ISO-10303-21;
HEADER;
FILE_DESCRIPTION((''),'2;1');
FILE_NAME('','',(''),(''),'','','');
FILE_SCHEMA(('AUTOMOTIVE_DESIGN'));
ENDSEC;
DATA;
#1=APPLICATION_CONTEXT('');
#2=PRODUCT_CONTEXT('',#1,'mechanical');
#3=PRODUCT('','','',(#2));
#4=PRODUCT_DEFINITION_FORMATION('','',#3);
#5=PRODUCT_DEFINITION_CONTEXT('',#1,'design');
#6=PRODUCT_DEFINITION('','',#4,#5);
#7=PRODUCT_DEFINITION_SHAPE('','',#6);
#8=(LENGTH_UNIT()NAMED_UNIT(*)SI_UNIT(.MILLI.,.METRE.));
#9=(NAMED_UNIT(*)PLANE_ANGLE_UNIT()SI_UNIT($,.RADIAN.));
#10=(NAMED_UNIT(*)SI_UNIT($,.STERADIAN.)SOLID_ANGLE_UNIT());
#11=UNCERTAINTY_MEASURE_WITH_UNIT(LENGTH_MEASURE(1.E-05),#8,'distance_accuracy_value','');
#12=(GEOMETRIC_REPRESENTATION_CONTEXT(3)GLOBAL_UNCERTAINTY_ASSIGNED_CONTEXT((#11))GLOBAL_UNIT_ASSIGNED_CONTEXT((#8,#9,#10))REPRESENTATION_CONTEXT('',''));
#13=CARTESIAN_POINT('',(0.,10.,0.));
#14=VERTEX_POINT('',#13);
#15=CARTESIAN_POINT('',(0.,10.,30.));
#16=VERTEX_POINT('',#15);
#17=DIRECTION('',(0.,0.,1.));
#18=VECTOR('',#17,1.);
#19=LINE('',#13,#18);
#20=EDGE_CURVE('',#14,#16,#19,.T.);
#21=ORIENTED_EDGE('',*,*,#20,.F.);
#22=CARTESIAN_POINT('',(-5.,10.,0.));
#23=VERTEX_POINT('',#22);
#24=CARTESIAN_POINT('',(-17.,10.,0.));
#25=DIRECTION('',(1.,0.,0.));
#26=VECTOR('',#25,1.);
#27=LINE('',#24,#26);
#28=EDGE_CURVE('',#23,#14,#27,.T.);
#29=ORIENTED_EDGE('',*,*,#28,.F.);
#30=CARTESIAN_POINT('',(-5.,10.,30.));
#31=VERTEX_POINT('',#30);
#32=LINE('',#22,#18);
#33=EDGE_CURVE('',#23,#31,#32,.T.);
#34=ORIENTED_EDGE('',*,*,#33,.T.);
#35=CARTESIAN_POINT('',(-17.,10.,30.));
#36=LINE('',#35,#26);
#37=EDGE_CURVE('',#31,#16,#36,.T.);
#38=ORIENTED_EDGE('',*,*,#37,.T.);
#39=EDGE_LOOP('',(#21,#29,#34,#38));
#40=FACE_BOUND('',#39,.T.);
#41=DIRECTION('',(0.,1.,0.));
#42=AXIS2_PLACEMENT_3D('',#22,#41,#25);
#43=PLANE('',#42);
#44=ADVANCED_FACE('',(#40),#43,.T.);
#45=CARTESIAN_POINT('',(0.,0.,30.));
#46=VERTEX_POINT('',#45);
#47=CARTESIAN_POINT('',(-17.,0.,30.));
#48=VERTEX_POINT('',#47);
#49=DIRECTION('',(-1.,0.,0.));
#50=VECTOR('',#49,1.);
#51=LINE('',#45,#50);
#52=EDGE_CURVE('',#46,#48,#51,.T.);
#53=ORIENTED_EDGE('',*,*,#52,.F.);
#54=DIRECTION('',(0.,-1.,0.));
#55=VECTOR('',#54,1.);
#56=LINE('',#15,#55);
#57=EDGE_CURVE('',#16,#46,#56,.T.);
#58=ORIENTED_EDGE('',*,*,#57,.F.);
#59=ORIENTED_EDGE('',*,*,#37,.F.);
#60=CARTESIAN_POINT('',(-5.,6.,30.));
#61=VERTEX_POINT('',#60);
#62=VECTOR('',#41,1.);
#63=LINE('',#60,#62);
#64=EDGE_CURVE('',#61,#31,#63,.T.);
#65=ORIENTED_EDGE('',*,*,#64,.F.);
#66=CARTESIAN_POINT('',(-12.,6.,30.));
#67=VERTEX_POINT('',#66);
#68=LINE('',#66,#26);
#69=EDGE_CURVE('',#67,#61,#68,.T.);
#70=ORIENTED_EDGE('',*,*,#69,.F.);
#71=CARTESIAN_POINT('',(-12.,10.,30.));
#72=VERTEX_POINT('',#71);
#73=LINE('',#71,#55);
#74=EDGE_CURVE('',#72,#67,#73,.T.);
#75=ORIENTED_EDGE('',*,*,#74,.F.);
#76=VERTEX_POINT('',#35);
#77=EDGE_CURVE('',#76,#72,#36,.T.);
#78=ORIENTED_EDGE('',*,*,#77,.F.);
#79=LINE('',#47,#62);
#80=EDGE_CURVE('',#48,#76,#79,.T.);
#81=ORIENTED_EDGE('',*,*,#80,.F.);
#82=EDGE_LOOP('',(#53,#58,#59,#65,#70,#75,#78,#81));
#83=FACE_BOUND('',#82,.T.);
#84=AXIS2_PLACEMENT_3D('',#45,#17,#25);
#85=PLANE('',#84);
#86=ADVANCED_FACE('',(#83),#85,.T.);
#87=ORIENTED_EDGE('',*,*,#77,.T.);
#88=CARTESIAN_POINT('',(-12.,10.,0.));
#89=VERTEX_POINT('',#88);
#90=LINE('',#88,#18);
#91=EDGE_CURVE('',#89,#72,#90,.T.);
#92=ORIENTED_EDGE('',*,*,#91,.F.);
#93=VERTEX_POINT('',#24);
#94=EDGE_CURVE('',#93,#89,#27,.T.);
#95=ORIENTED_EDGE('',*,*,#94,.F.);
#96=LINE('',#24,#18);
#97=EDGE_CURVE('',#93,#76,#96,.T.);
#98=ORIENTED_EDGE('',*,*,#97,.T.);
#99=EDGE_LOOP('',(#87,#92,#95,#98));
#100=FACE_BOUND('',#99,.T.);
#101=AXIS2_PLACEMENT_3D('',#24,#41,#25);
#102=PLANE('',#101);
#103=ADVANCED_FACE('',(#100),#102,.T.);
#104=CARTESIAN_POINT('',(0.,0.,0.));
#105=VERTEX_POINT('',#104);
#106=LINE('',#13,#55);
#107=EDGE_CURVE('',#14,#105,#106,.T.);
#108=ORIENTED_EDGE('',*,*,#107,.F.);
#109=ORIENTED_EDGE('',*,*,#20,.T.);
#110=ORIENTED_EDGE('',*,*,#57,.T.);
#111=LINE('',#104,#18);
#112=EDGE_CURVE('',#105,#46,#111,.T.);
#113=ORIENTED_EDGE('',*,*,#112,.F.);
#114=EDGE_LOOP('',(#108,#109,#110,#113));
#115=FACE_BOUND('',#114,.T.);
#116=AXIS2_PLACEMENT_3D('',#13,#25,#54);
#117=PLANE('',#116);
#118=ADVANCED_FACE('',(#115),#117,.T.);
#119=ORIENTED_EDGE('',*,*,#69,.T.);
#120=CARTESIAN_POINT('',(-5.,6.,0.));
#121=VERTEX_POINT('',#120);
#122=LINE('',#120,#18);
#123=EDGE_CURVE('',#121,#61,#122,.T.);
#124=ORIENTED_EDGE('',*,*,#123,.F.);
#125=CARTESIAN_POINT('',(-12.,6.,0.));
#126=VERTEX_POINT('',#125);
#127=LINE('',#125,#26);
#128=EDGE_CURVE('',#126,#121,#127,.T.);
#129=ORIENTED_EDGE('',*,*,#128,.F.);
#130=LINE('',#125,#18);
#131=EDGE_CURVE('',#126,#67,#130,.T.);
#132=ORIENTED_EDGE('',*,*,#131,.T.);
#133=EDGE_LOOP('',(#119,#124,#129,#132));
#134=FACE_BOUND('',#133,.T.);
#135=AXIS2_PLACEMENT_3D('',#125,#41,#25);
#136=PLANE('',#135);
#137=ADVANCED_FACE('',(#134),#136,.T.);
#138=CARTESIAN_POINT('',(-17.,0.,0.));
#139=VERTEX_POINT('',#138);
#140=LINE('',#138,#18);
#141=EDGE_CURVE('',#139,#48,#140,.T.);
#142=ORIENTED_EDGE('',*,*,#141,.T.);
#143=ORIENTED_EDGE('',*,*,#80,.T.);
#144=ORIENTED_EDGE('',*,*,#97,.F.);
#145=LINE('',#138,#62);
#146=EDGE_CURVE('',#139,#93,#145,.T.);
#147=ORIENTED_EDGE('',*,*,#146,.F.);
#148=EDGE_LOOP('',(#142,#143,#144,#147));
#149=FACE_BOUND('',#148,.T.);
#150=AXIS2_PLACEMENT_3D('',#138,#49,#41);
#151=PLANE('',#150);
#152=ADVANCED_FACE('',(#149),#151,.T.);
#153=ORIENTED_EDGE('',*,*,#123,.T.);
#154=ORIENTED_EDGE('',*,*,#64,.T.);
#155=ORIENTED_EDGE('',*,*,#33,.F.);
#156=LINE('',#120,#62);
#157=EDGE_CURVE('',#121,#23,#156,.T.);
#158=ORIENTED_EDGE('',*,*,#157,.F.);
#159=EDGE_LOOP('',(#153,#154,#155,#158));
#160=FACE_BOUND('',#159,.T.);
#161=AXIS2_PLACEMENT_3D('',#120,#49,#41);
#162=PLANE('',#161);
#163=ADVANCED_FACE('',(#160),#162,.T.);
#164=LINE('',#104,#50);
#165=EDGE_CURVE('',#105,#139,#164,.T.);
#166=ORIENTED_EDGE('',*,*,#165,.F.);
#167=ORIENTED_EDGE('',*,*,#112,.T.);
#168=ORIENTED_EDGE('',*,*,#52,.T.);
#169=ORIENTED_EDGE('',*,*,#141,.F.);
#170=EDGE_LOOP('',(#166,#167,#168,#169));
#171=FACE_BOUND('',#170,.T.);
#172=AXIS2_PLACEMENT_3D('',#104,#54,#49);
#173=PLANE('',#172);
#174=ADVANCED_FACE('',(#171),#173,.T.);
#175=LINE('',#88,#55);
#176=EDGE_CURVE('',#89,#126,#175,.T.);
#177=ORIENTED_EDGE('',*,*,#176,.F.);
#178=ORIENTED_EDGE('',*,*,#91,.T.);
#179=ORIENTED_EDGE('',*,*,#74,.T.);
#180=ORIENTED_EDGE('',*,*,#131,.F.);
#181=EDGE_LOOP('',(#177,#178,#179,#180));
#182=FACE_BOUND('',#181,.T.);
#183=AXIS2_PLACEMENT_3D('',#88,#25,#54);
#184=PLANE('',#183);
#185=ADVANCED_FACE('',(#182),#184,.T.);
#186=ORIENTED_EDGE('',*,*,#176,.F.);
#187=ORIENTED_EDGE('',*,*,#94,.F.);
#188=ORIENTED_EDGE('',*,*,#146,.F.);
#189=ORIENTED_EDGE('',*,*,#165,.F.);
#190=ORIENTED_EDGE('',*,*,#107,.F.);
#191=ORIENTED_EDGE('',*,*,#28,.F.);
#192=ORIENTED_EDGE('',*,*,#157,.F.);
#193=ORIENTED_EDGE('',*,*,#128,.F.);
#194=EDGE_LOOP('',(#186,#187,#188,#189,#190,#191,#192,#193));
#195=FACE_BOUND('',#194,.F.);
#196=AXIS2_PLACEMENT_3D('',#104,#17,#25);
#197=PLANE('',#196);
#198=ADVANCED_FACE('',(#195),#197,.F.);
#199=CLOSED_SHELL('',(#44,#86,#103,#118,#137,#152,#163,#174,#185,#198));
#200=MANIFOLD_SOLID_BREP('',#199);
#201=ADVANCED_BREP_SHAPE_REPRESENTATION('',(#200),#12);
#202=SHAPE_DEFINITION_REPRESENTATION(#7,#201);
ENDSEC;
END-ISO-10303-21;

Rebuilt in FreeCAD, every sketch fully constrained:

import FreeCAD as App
import Part
import Sketcher
from FreeCAD import Vector


def add_polygon(sketch, points):
    """Adds a closed chain of lines whose ends are joined by coincident constraints."""
    first, n = sketch.GeometryCount, len(points)
    for a, b in zip(points, points[1:] + points[:1]):
        sketch.addGeometry(Part.LineSegment(App.Vector(*a, 0), App.Vector(*b, 0)), False)
    for i in range(n):
        sketch.addConstraint(Sketcher.Constraint("Coincident", first + i, 2, first + (i + 1) % n, 1))

doc = App.newDocument("Part")
body = doc.addObject("PartDesign::Body", "Body")

sketch1 = body.newObject("Sketcher::SketchObject", "Sketch")
sketch1.AttachmentSupport = (doc.getObject("XY_Plane"), [""])
sketch1.MapMode = "FlatFace"
add_polygon(sketch1, [(-17, 0), (0, 0), (0, 10), (-5, 10), (-5, 6), (-12, 6), (-12, 10), (-17, 10)])
sketch1.addConstraint(Sketcher.Constraint("Horizontal", 0))
sketch1.addConstraint(Sketcher.Constraint("Vertical", 1))
sketch1.addConstraint(Sketcher.Constraint("Horizontal", 2))
sketch1.addConstraint(Sketcher.Constraint("Vertical", 3))
sketch1.addConstraint(Sketcher.Constraint("Horizontal", 4))
sketch1.addConstraint(Sketcher.Constraint("Vertical", 5))
sketch1.addConstraint(Sketcher.Constraint("Horizontal", 6))
sketch1.addConstraint(Sketcher.Constraint("Vertical", 7))
sketch1.addConstraint(Sketcher.Constraint("Coincident", 0, 2, -1, 1))
sketch1.addConstraint(Sketcher.Constraint("Horizontal", 2, 2, 5, 2))
sketch1.addConstraint(Sketcher.Constraint("Equal", 2, 6))
sketch1.addConstraint(Sketcher.Constraint("DistanceX", 0, 1, 0, 2, 17.0))
sketch1.addConstraint(Sketcher.Constraint("DistanceX", 2, 2, 2, 1, 5.0))
sketch1.addConstraint(Sketcher.Constraint("DistanceY", 3, 2, 3, 1, 4.0))
sketch1.addConstraint(Sketcher.Constraint("DistanceY", -1, 1, 3, 2, 6.0))
pad1 = body.newObject("PartDesign::Pad", "Pad")
pad1.Profile = sketch1
pad1.Length = 30

doc.recompute()
